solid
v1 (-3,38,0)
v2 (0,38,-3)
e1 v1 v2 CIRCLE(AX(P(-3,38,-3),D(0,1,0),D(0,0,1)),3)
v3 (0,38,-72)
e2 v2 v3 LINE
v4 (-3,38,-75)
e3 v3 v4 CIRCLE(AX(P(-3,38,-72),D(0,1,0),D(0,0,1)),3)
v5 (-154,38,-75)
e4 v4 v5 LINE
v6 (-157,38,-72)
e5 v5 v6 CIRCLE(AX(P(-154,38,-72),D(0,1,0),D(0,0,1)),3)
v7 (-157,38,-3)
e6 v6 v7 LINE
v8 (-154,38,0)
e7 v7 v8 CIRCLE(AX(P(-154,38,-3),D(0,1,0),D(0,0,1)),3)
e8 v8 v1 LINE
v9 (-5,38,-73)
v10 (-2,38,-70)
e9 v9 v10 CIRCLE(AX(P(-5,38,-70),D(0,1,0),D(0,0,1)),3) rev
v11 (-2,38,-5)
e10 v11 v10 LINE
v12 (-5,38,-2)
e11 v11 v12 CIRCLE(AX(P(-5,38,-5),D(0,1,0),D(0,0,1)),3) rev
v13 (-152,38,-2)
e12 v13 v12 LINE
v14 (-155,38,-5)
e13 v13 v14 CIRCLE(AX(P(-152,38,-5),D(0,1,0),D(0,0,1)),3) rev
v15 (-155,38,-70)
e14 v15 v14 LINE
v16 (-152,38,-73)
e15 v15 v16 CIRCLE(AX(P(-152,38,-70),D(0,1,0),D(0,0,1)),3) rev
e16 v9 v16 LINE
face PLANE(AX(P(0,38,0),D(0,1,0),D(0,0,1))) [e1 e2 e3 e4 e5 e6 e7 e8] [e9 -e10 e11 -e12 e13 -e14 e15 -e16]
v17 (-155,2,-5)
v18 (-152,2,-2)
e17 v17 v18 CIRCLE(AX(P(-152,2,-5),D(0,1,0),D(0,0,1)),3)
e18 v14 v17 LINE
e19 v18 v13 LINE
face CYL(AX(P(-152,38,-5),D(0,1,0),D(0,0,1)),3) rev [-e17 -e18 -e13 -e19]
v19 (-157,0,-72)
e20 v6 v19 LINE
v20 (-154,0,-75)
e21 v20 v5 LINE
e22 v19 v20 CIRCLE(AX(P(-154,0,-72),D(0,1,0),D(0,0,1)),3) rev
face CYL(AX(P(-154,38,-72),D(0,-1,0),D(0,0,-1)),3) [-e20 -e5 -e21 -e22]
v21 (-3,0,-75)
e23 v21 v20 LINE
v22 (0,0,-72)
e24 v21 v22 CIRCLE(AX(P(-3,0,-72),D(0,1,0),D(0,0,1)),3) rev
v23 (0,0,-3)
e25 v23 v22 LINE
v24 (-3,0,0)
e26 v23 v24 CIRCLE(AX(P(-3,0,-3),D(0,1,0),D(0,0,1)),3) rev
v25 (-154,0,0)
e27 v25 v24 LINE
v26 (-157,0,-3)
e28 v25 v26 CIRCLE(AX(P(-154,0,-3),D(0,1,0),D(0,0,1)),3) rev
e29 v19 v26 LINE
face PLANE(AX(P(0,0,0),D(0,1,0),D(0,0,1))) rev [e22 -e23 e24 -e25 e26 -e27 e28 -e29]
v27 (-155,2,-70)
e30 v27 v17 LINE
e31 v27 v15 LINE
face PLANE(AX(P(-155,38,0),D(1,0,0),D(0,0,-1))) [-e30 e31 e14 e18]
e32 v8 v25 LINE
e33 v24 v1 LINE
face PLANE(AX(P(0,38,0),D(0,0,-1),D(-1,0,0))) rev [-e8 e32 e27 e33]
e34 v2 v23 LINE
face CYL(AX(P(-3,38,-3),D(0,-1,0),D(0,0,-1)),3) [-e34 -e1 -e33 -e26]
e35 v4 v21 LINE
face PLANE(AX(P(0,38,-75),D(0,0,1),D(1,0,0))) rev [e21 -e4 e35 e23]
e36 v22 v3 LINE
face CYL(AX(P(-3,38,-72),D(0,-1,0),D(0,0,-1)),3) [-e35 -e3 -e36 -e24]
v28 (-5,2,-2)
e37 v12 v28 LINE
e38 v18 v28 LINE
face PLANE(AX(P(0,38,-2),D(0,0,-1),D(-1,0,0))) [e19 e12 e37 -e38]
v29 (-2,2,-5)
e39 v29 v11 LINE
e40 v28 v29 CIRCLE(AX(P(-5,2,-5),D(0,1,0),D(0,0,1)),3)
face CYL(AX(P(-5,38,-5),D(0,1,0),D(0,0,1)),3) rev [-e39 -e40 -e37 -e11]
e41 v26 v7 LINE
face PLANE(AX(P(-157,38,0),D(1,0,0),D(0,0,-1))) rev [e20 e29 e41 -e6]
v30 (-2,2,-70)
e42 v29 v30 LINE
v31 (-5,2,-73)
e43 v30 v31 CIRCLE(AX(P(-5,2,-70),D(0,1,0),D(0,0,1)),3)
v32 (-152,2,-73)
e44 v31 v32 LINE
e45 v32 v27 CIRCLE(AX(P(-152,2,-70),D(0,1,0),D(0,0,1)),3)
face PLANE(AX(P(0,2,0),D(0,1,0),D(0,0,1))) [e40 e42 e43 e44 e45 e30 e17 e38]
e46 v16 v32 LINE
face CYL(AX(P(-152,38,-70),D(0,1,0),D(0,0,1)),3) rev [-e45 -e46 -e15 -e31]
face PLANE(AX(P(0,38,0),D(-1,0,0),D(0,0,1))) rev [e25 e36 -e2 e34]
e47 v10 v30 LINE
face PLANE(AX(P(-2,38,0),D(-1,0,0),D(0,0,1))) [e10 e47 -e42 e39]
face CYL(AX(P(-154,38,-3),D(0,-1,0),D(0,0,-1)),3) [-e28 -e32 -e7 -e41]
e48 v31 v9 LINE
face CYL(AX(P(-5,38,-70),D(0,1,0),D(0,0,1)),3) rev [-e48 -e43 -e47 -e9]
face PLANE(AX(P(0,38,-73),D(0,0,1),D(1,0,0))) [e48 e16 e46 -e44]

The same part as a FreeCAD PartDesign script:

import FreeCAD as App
import Part
import Sketcher

V = App.Vector
Q = App.Units.Quantity


def edges_at(feature, points):
    """Names of the edges that pass closest to the given points."""
    edges = feature.Shape.Edges
    near = lambda p: min(range(len(edges)), key=lambda i: edges[i].distToShape(Part.Vertex(*p))[0])
    return sorted({f"Edge{near(p) + 1}" for p in points})


def faces_at(feature, points):
    """Names of the faces that lie closest to the given points."""
    faces = feature.Shape.Faces
    near = lambda p: min(range(len(faces)), key=lambda i: faces[i].distToShape(Part.Vertex(*p))[0])
    return sorted({f"Face{near(p) + 1}" for p in points})


def add_polygon(sketch, points):
    """Adds a closed chain of lines whose ends are joined by coincident constraints."""
    first, n = sketch.GeometryCount, len(points)
    for a, b in zip(points, points[1:] + points[:1]):
        sketch.addGeometry(Part.LineSegment(App.Vector(*a, 0), App.Vector(*b, 0)), False)
    for i in range(n):
        sketch.addConstraint(Sketcher.Constraint("Coincident", first + i, 2, first + (i + 1) % n, 1))

doc = App.newDocument("Part")
body = doc.addObject("PartDesign::Body", "Body")

# Sketch on XZ plane
sketch1 = body.newObject("Sketcher::SketchObject", "Sketch")
sketch1.AttachmentSupport = (doc.getObject("XZ_Plane"), [""])
sketch1.MapMode = "FlatFace"
add_polygon(sketch1, [(-157, -75), (-157, 0), (0, 0), (0, -75)])  # lines 0-3
sketch1.addConstraint(Sketcher.Constraint("Vertical", 0))
sketch1.addConstraint(Sketcher.Constraint("Horizontal", 1))
sketch1.addConstraint(Sketcher.Constraint("Vertical", 2))
sketch1.addConstraint(Sketcher.Constraint("Horizontal", 3))
sketch1.addConstraint(Sketcher.Constraint("Coincident", 1, 2, -1, 1))
sketch1.addConstraint(Sketcher.Constraint("DistanceX", 1, 1, 1, 2, Q("157 mm")))
sketch1.addConstraint(Sketcher.Constraint("DistanceY", 0, 1, 0, 2, Q("75 mm")))
pad1 = body.newObject("PartDesign::Pad", "Pad")
pad1.Profile = sketch1
pad1.Length = 38
pad1.Reversed = True
doc.recompute()

thickness = body.newObject("PartDesign::Thickness", "Thickness")
thickness.Base = (pad1, faces_at(pad1, [(-78.5, 38, -37.5)]))
thickness.Value = 2
thickness.Reversed = True
thickness.Join = "Intersection"
doc.recompute()

fillet = body.newObject("PartDesign::Fillet", "Fillet")
fillet.Base = (thickness, edges_at(thickness, [
    (-2, 20, -2),
    (-2, 20, -73),
    (-155, 20, -73),
    (-155, 20, -2),
    (0, 19, 0),
    (-157, 19, 0),
    (-157, 19, -75),
    (0, 19, -75),
]))
fillet.Radius = 3

doc.recompute()
